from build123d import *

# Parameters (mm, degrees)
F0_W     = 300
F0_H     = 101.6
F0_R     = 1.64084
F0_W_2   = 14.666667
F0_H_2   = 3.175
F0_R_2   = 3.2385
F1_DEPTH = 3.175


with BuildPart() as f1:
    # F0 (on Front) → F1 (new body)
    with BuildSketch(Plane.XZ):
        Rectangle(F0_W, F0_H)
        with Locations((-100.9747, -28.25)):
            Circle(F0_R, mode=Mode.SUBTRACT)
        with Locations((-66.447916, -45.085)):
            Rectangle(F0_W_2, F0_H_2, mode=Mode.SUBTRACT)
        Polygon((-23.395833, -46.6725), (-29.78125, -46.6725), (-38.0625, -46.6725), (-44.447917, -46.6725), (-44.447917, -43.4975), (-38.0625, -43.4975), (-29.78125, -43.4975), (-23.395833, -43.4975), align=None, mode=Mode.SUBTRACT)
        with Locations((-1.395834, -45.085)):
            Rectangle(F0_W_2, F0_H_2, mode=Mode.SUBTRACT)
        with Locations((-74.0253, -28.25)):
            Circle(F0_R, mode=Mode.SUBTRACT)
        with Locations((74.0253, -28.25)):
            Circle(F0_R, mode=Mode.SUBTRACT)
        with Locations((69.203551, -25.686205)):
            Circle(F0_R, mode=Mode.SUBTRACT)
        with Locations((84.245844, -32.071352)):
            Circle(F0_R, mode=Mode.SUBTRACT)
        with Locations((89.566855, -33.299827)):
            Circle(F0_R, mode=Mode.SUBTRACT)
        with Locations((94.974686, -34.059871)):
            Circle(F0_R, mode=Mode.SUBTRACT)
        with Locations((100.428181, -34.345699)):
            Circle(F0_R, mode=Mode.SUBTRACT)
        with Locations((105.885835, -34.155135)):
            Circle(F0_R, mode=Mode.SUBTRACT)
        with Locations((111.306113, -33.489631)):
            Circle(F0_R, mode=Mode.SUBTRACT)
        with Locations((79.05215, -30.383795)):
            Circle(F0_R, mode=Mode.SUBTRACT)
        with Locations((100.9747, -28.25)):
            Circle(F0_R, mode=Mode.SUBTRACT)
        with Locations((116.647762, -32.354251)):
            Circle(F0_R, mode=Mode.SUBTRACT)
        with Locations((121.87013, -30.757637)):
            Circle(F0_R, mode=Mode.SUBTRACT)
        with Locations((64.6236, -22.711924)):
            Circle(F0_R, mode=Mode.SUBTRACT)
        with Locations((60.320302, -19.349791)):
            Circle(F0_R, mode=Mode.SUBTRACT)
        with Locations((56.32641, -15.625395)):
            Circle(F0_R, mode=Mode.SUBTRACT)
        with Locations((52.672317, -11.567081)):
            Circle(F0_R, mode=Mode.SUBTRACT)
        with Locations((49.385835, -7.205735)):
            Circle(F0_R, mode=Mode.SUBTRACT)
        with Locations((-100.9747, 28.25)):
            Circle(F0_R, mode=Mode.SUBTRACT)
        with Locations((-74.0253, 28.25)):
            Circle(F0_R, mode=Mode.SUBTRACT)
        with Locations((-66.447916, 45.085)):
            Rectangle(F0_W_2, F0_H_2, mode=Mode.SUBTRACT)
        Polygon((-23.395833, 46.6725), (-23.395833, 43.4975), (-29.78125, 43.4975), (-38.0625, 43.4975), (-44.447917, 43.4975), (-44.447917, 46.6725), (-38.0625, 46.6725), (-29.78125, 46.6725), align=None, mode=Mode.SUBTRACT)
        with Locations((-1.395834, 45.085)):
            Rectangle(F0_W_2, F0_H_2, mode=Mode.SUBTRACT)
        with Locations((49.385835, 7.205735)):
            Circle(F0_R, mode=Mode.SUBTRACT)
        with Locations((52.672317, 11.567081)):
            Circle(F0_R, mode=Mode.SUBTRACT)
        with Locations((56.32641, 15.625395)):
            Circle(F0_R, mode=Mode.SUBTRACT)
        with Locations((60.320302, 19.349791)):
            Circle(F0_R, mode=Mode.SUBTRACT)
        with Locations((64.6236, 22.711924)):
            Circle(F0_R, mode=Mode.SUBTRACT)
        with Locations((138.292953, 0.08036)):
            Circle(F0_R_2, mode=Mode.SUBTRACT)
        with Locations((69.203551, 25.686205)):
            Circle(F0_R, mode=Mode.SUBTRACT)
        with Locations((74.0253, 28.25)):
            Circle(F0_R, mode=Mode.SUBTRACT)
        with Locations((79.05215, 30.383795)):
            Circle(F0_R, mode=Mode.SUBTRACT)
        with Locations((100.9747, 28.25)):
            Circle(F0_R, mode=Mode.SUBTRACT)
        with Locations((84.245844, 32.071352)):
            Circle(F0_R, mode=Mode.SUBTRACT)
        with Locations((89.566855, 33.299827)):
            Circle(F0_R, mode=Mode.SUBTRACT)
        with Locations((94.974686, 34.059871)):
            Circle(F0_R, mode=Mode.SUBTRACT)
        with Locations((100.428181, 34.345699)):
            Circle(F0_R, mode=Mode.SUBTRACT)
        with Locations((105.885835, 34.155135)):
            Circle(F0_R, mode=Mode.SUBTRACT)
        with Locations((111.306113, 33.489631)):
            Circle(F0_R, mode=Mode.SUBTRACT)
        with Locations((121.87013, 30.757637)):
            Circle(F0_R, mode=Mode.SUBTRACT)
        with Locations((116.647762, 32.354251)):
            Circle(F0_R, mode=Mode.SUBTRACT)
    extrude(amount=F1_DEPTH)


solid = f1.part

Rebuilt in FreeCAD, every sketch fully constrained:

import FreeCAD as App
import Part
import Sketcher

V = App.Vector
Q = App.Units.Quantity

doc = App.newDocument("Part")
params = doc.addObject("Spreadsheet::Sheet", "Params")
for row, (alias, value) in enumerate([
    ("sketch1_height", "4 in"),
    ("sketch1_diameter", "0.255 in"),
    ("sketch1_height2", "0.125 in"),
    ("pad1_length", "0.125 in"),
], start=1):
    params.set(f"A{row}", alias)
    params.set(f"B{row}", "=" + value)
    params.setAlias(f"B{row}", alias)

body = doc.addObject("PartDesign::Body", "Body")

# Sketch on XZ plane
sketch1 = doc.addObject("Sketcher::SketchObject", "Sketch")
body.addObject(sketch1)
sketch1.AttachmentSupport = (doc.XZ_Plane, [""])
sketch1.MapMode = "FlatFace"
sketch1.addGeometry(Part.LineSegment(V(-150, 50.8, 0), V(-150, -50.8, 0)), False)
sketch1.addGeometry(Part.LineSegment(V(-150, -50.8, 0), V(150, -50.8, 0)), False)
sketch1.addGeometry(Part.LineSegment(V(150, -50.8, 0), V(150, 50.8, 0)), False)
sketch1.addGeometry(Part.LineSegment(V(150, 50.8, 0), V(-150, 50.8, 0)), False)
sketch1.addGeometry(Part.LineSegment(V(-59.1, -46.7, 0), V(-73.8, -46.7, 0)), False)
sketch1.addGeometry(Part.LineSegment(V(-73.8, -46.7, 0), V(-73.8, -43.5, 0)), False)
sketch1.addGeometry(Part.LineSegment(V(-73.8, -43.5, 0), V(-59.1, -43.5, 0)), False)
sketch1.addGeometry(Part.LineSegment(V(-59.1, -43.5, 0), V(-59.1, -46.7, 0)), False)
sketch1.addGeometry(Part.Circle(V(-101, -28.2, 0), V(0, 0, 1), 1.6), False)
sketch1.addGeometry(Part.Circle(V(-74, -28.2, 0), V(0, 0, 1), 1.6), False)
sketch1.addGeometry(Part.LineSegment(V(-23.4, -43.5, 0), V(-23.4, -46.7, 0)), False)
sketch1.addGeometry(Part.LineSegment(V(-23.4, -46.7, 0), V(-44.4, -46.7, 0)), False)
sketch1.addGeometry(Part.LineSegment(V(-44.4, -46.7, 0), V(-44.4, -43.5, 0)), False)
sketch1.addGeometry(Part.LineSegment(V(-44.4, -43.5, 0), V(-23.4, -43.5, 0)), False)
sketch1.addGeometry(Part.LineSegment(V(5.9, -46.7, 0), V(-8.7, -46.7, 0)), False)
sketch1.addGeometry(Part.LineSegment(V(-8.7, -46.7, 0), V(-8.7, -43.5, 0)), False)
sketch1.addGeometry(Part.LineSegment(V(-8.7, -43.5, 0), V(5.9, -43.5, 0)), False)
sketch1.addGeometry(Part.LineSegment(V(5.9, -43.5, 0), V(5.9, -46.7, 0)), False)
sketch1.addGeometry(Part.Circle(V(79.1, -30.4, 0), V(0, 0, 1), 1.6), False)
sketch1.addGeometry(Part.Circle(V(74, -28.2, 0), V(0, 0, 1), 1.6), False)
sketch1.addGeometry(Part.Circle(V(69.2, -25.7, 0), V(0, 0, 1), 1.6), False)
sketch1.addGeometry(Part.Circle(V(95, -34.1, 0), V(0, 0, 1), 1.6), False)
sketch1.addGeometry(Part.Circle(V(89.6, -33.3, 0), V(0, 0, 1), 1.6), False)
sketch1.addGeometry(Part.Circle(V(84.2, -32.1, 0), V(0, 0, 1), 1.6), False)
sketch1.addGeometry(Part.Circle(V(100.4, -34.3, 0), V(0, 0, 1), 1.6), False)
sketch1.addGeometry(Part.Circle(V(105.9, -34.2, 0), V(0, 0, 1), 1.6), False)
sketch1.addGeometry(Part.Circle(V(101, -28.2, 0), V(0, 0, 1), 1.6), False)
sketch1.addGeometry(Part.Circle(V(111.3, -33.5, 0), V(0, 0, 1), 1.6), False)
sketch1.addGeometry(Part.Circle(V(116.6, -32.4, 0), V(0, 0, 1), 1.6), False)
sketch1.addGeometry(Part.Circle(V(121.9, -30.8, 0), V(0, 0, 1), 1.6), False)
sketch1.addGeometry(Part.Circle(V(64.6, -22.7, 0), V(0, 0, 1), 1.6), False)
sketch1.addGeometry(Part.Circle(V(60.3, -19.3, 0), V(0, 0, 1), 1.6), False)
sketch1.addGeometry(Part.Circle(V(56.3, -15.6, 0), V(0, 0, 1), 1.6), False)
sketch1.addGeometry(Part.Circle(V(49.4, -7.2, 0), V(0, 0, 1), 1.6), False)
sketch1.addGeometry(Part.Circle(V(52.7, -11.6, 0), V(0, 0, 1), 1.6), False)
sketch1.addGeometry(Part.Circle(V(-101, 28.2, 0), V(0, 0, 1), 1.6), False)
sketch1.addGeometry(Part.Circle(V(-74, 28.2, 0), V(0, 0, 1), 1.6), False)
sketch1.addGeometry(Part.LineSegment(V(-59.1, 43.5, 0), V(-73.8, 43.5, 0)), False)
sketch1.addGeometry(Part.LineSegment(V(-73.8, 43.5, 0), V(-73.8, 46.7, 0)), False)
sketch1.addGeometry(Part.LineSegment(V(-73.8, 46.7, 0), V(-59.1, 46.7, 0)), False)
sketch1.addGeometry(Part.LineSegment(V(-59.1, 46.7, 0), V(-59.1, 43.5, 0)), False)
sketch1.addGeometry(Part.LineSegment(V(-44.4, 46.7, 0), V(-23.4, 46.7, 0)), False)
sketch1.addGeometry(Part.LineSegment(V(-23.4, 46.7, 0), V(-23.4, 43.5, 0)), False)
sketch1.addGeometry(Part.LineSegment(V(-23.4, 43.5, 0), V(-44.4, 43.5, 0)), False)
sketch1.addGeometry(Part.LineSegment(V(-44.4, 43.5, 0), V(-44.4, 46.7, 0)), False)
sketch1.addGeometry(Part.LineSegment(V(5.9, 43.5, 0), V(-8.7, 43.5, 0)), False)
sketch1.addGeometry(Part.LineSegment(V(-8.7, 43.5, 0), V(-8.7, 46.7, 0)), False)
sketch1.addGeometry(Part.LineSegment(V(-8.7, 46.7, 0), V(5.9, 46.7, 0)), False)
sketch1.addGeometry(Part.LineSegment(V(5.9, 46.7, 0), V(5.9, 43.5, 0)), False)
sketch1.addGeometry(Part.Circle(V(49.4, 7.2, 0), V(0, 0, 1), 1.6), False)
sketch1.addGeometry(Part.Circle(V(52.7, 11.6, 0), V(0, 0, 1), 1.6), False)
sketch1.addGeometry(Part.Circle(V(56.3, 15.6, 0), V(0, 0, 1), 1.6), False)
sketch1.addGeometry(Part.Circle(V(60.3, 19.3, 0), V(0, 0, 1), 1.6), False)
sketch1.addGeometry(Part.Circle(V(64.6, 22.7, 0), V(0, 0, 1), 1.6), False)
sketch1.addGeometry(Part.Circle(V(138.3, 0.1, 0), V(0, 0, 1), 3.2), False)
sketch1.addGeometry(Part.Circle(V(69.2, 25.7, 0), V(0, 0, 1), 1.6), False)
sketch1.addGeometry(Part.Circle(V(74, 28.2, 0), V(0, 0, 1), 1.6), False)
sketch1.addGeometry(Part.Circle(V(79.1, 30.4, 0), V(0, 0, 1), 1.6), False)
sketch1.addGeometry(Part.Circle(V(101, 28.2, 0), V(0, 0, 1), 1.6), False)
sketch1.addGeometry(Part.Circle(V(84.2, 32.1, 0), V(0, 0, 1), 1.6), False)
sketch1.addGeometry(Part.Circle(V(89.6, 33.3, 0), V(0, 0, 1), 1.6), False)
sketch1.addGeometry(Part.Circle(V(95, 34.1, 0), V(0, 0, 1), 1.6), False)
sketch1.addGeometry(Part.Circle(V(100.4, 34.3, 0), V(0, 0, 1), 1.6), False)
sketch1.addGeometry(Part.Circle(V(105.9, 34.2, 0), V(0, 0, 1), 1.6), False)
sketch1.addGeometry(Part.Circle(V(121.9, 30.8, 0), V(0, 0, 1), 1.6), False)
sketch1.addGeometry(Part.Circle(V(111.3, 33.5, 0), V(0, 0, 1), 1.6), False)
sketch1.addGeometry(Part.Circle(V(116.6, 32.4, 0), V(0, 0, 1), 1.6), False)
sketch1.addConstraint(Sketcher.Constraint("Coincident", 0, 2, 1, 1))
sketch1.addConstraint(Sketcher.Constraint("Coincident", 1, 2, 2, 1))
sketch1.addConstraint(Sketcher.Constraint("Coincident", 2, 2, 3, 1))
sketch1.addConstraint(Sketcher.Constraint("Coincident", 3, 2, 0, 1))
sketch1.addConstraint(Sketcher.Constraint("Coincident", 4, 2, 5, 1))
sketch1.addConstraint(Sketcher.Constraint("Coincident", 5, 2, 6, 1))
sketch1.addConstraint(Sketcher.Constraint("Coincident", 6, 2, 7, 1))
sketch1.addConstraint(Sketcher.Constraint("Coincident", 7, 2, 4, 1))
sketch1.addConstraint(Sketcher.Constraint("Coincident", 10, 2, 11, 1))
sketch1.addConstraint(Sketcher.Constraint("Coincident", 11, 2, 12, 1))
sketch1.addConstraint(Sketcher.Constraint("Coincident", 12, 2, 13, 1))
sketch1.addConstraint(Sketcher.Constraint("Coincident", 13, 2, 10, 1))
sketch1.addConstraint(Sketcher.Constraint("Coincident", 14, 2, 15, 1))
sketch1.addConstraint(Sketcher.Constraint("Coincident", 15, 2, 16, 1))
sketch1.addConstraint(Sketcher.Constraint("Coincident", 16, 2, 17, 1))
sketch1.addConstraint(Sketcher.Constraint("Coincident", 17, 2, 14, 1))
sketch1.addConstraint(Sketcher.Constraint("Coincident", 37, 2, 38, 1))
sketch1.addConstraint(Sketcher.Constraint("Coincident", 38, 2, 39, 1))
sketch1.addConstraint(Sketcher.Constraint("Coincident", 39, 2, 40, 1))
sketch1.addConstraint(Sketcher.Constraint("Coincident", 40, 2, 37, 1))
sketch1.addConstraint(Sketcher.Constraint("Coincident", 41, 2, 42, 1))
sketch1.addConstraint(Sketcher.Constraint("Coincident", 42, 2, 43, 1))
sketch1.addConstraint(Sketcher.Constraint("Coincident", 43, 2, 44, 1))
sketch1.addConstraint(Sketcher.Constraint("Coincident", 44, 2, 41, 1))
sketch1.addConstraint(Sketcher.Constraint("Coincident", 45, 2, 46, 1))
sketch1.addConstraint(Sketcher.Constraint("Coincident", 46, 2, 47, 1))
sketch1.addConstraint(Sketcher.Constraint("Coincident", 47, 2, 48, 1))
sketch1.addConstraint(Sketcher.Constraint("Coincident", 48, 2, 45, 1))
sketch1.addConstraint(Sketcher.Constraint("Vertical", 0))
sketch1.addConstraint(Sketcher.Constraint("Horizontal", 1))
sketch1.addConstraint(Sketcher.Constraint("Vertical", 2))
sketch1.addConstraint(Sketcher.Constraint("Horizontal", 3))
sketch1.addConstraint(Sketcher.Constraint("Horizontal", 4))
sketch1.addConstraint(Sketcher.Constraint("Vertical", 5))
sketch1.addConstraint(Sketcher.Constraint("Horizontal", 6))
sketch1.addConstraint(Sketcher.Constraint("Vertical", 7))
sketch1.addConstraint(Sketcher.Constraint("Vertical", 10))
sketch1.addConstraint(Sketcher.Constraint("Horizontal", 11))
sketch1.addConstraint(Sketcher.Constraint("Vertical", 12))
sketch1.addConstraint(Sketcher.Constraint("Horizontal", 13))
sketch1.addConstraint(Sketcher.Constraint("Horizontal", 14))
sketch1.addConstraint(Sketcher.Constraint("Vertical", 15))
sketch1.addConstraint(Sketcher.Constraint("Horizontal", 16))
sketch1.addConstraint(Sketcher.Constraint("Vertical", 17))
sketch1.addConstraint(Sketcher.Constraint("Horizontal", 37))
sketch1.addConstraint(Sketcher.Constraint("Vertical", 38))
sketch1.addConstraint(Sketcher.Constraint("Horizontal", 39))
sketch1.addConstraint(Sketcher.Constraint("Vertical", 40))
sketch1.addConstraint(Sketcher.Constraint("Horizontal", 41))
sketch1.addConstraint(Sketcher.Constraint("Vertical", 42))
sketch1.addConstraint(Sketcher.Constraint("Horizontal", 43))
sketch1.addConstraint(Sketcher.Constraint("Vertical", 44))
sketch1.addConstraint(Sketcher.Constraint("Horizontal", 45))
sketch1.addConstraint(Sketcher.Constraint("Vertical", 46))
sketch1.addConstraint(Sketcher.Constraint("Horizontal", 47))
sketch1.addConstraint(Sketcher.Constraint("Vertical", 48))
sketch1.addConstraint(Sketcher.Constraint("Equal", 8, 9))
sketch1.addConstraint(Sketcher.Constraint("Equal", 9, 18))
sketch1.addConstraint(Sketcher.Constraint("Equal", 18, 19))
sketch1.addConstraint(Sketcher.Constraint("Equal", 19, 20))
sketch1.addConstraint(Sketcher.Constraint("Equal", 20, 21))
sketch1.addConstraint(Sketcher.Constraint("Equal", 21, 22))
sketch1.addConstraint(Sketcher.Constraint("Equal", 22, 23))
sketch1.addConstraint(Sketcher.Constraint("Equal", 23, 24))
sketch1.addConstraint(Sketcher.Constraint("Equal", 24, 25))
sketch1.addConstraint(Sketcher.Constraint("Equal", 25, 26))
sketch1.addConstraint(Sketcher.Constraint("Equal", 26, 27))
sketch1.addConstraint(Sketcher.Constraint("Equal", 27, 28))
sketch1.addConstraint(Sketcher.Constraint("Equal", 28, 29))
sketch1.addConstraint(Sketcher.Constraint("Equal", 29, 30))
sketch1.addConstraint(Sketcher.Constraint("Equal", 30, 31))
sketch1.addConstraint(Sketcher.Constraint("Equal", 31, 32))
sketch1.addConstraint(Sketcher.Constraint("Equal", 32, 33))
sketch1.addConstraint(Sketcher.Constraint("Equal", 33, 34))
sketch1.addConstraint(Sketcher.Constraint("Equal", 34, 35))
sketch1.addConstraint(Sketcher.Constraint("Equal", 35, 36))
sketch1.addConstraint(Sketcher.Constraint("Equal", 36, 49))
sketch1.addConstraint(Sketcher.Constraint("Equal", 49, 50))
sketch1.addConstraint(Sketcher.Constraint("Equal", 50, 51))
sketch1.addConstraint(Sketcher.Constraint("Equal", 51, 52))
sketch1.addConstraint(Sketcher.Constraint("Equal", 52, 53))
sketch1.addConstraint(Sketcher.Constraint("Equal", 53, 55))
sketch1.addConstraint(Sketcher.Constraint("Equal", 55, 56))
sketch1.addConstraint(Sketcher.Constraint("Equal", 56, 57))
sketch1.addConstraint(Sketcher.Constraint("Equal", 57, 58))
sketch1.addConstraint(Sketcher.Constraint("Equal", 58, 59))
sketch1.addConstraint(Sketcher.Constraint("Equal", 59, 60))
sketch1.addConstraint(Sketcher.Constraint("Equal", 60, 61))
sketch1.addConstraint(Sketcher.Constraint("Equal", 61, 62))
sketch1.addConstraint(Sketcher.Constraint("Equal", 62, 63))
sketch1.addConstraint(Sketcher.Constraint("Equal", 63, 64))
sketch1.addConstraint(Sketcher.Constraint("Equal", 64, 65))
sketch1.addConstraint(Sketcher.Constraint("Equal", 65, 66))
sketch1.addConstraint(Sketcher.Constraint("Symmetric", 26, 3, 35, 3, -1, 1))
sketch1.addConstraint(Sketcher.Constraint("Symmetric", 19, 3, 36, 3, -1, 1))
sketch1.addConstraint(Sketcher.Constraint("Symmetric", 9, 3, 56, 3, -1, 1))
sketch1.addConstraint(Sketcher.Constraint("Symmetric", 8, 3, 58, 3, -1, 1))
sketch1.addConstraint(Sketcher.Constraint("Symmetric", 0, 2, 2, 2, -1, 1))
sketch1.addConstraint(Sketcher.Constraint("Symmetric", 9, 3, 19, 3, -2))
sketch1.addConstraint(Sketcher.Constraint("Symmetric", 8, 3, 26, 3, -2))
sketch1.addConstraint(Sketcher.Constraint("Symmetric", 33, 3, 49, 3, -1))
sketch1.addConstraint(Sketcher.Constraint("Symmetric", 34, 3, 50, 3, -1))
sketch1.addConstraint(Sketcher.Constraint("Symmetric", 32, 3, 51, 3, -1))
sketch1.addConstraint(Sketcher.Constraint("Symmetric", 31, 3, 52, 3, -1))
sketch1.addConstraint(Sketcher.Constraint("Symmetric", 30, 3, 53, 3, -1))
sketch1.addConstraint(Sketcher.Constraint("Symmetric", 20, 3, 55, 3, -1))
sketch1.addConstraint(Sketcher.Constraint("Symmetric", 18, 3, 57, 3, -1))
sketch1.addConstraint(Sketcher.Constraint("Symmetric", 23, 3, 59, 3, -1))
sketch1.addConstraint(Sketcher.Constraint("Symmetric", 22, 3, 60, 3, -1))
sketch1.addConstraint(Sketcher.Constraint("Symmetric", 21, 3, 61, 3, -1))
sketch1.addConstraint(Sketcher.Constraint("Symmetric", 24, 3, 62, 3, -1))
sketch1.addConstraint(Sketcher.Constraint("Symmetric", 25, 3, 63, 3, -1))
sketch1.addConstraint(Sketcher.Constraint("Symmetric", 29, 3, 64, 3, -1))
sketch1.addConstraint(Sketcher.Constraint("Symmetric", 27, 3, 65, 3, -1))
sketch1.addConstraint(Sketcher.Constraint("Symmetric", 28, 3, 66, 3, -1))
sketch1.addConstraint(Sketcher.Constraint("Symmetric", 5, 2, 37, 2, -1))
sketch1.addConstraint(Sketcher.Constraint("Symmetric", 7, 2, 39, 2, -1))
sketch1.addConstraint(Sketcher.Constraint("Symmetric", 10, 2, 41, 2, -1))
sketch1.addConstraint(Sketcher.Constraint("Symmetric", 12, 2, 43, 2, -1))
sketch1.addConstraint(Sketcher.Constraint("Symmetric", 15, 2, 45, 2, -1))
sketch1.addConstraint(Sketcher.Constraint("Symmetric", 17, 2, 47, 2, -1))
sketch1.addConstraint(Sketcher.Constraint("Horizontal", 8, 3, 9, 3))
sketch1.addConstraint(Sketcher.Constraint("Horizontal", 7, 2, 10, 2))
sketch1.addConstraint(Sketcher.Constraint("Horizontal", 6, 2, 12, 2))
sketch1.addConstraint(Sketcher.Constraint("Horizontal", 11, 2, 14, 2))
sketch1.addConstraint(Sketcher.Constraint("Horizontal", 13, 2, 15, 2))
sketch1.addConstraint(Sketcher.Constraint("Equal", 6, 14))
sketch1.addConstraint(Sketcher.Constraint("DistanceY", 0, 2, 0, 1, Q("4 in")))
sketch1.addConstraint(Sketcher.Constraint("Diameter", 54, Q("0.255 in")))
sketch1.addConstraint(Sketcher.Constraint("Diameter", 8, Q("0.1292 in")))
sketch1.addConstraint(Sketcher.Constraint("DistanceY", 5, 1, 5, 2, Q("0.125 in")))
sketch1.addConstraint(Sketcher.Constraint("DistanceX", 1, 1, 1, 2, 300.0))
sketch1.addConstraint(Sketcher.Constraint("DistanceY", 4, 2, -1, 1, Q("1.8375 in")))
sketch1.addConstraint(Sketcher.Constraint("DistanceX", 8, 3, -1, 1, 100.9747))
sketch1.addConstraint(Sketcher.Constraint("DistanceY", 8, 3, -1, 1, 28.25))
sketch1.addConstraint(Sketcher.Constraint("DistanceX", 9, 3, -1, 1, 74.0253))
sketch1.addConstraint(Sketcher.Constraint("DistanceY", 24, 3, -1, 1, 34.345699))
sketch1.addConstraint(Sketcher.Constraint("DistanceX", -1, 1, 30, 3, 64.6236))
sketch1.addConstraint(Sketcher.Constraint("DistanceX", -1, 1, 31, 3, 60.320302))
sketch1.addConstraint(Sketcher.Constraint("DistanceX", -1, 1, 16, 2, 5.9375))
sketch1.addConstraint(Sketcher.Constraint("DistanceX", 4, 2, 4, 1, 14.666667))
sketch1.addConstraint(Sketcher.Constraint("DistanceX", 11, 2, 11, 1, 21.052084))
sketch1.addConstraint(Sketcher.Constraint("DistanceX", -1, 1, 18, 3, 79.05215))
sketch1.addConstraint(Sketcher.Constraint("DistanceX", -1, 1, 20, 3, 69.203551))
sketch1.addConstraint(Sketcher.Constraint("DistanceY", 21, 3, -1, 1, 34.059871))
sketch1.addConstraint(Sketcher.Constraint("DistanceY", 23, 3, -1, 1, 32.071352))
sketch1.addConstraint(Sketcher.Constraint("DistanceX", -1, 1, 24, 3, 100.428181))
sketch1.addConstraint(Sketcher.Constraint("DistanceY", 27, 3, -1, 1, 33.489631))
sketch1.addConstraint(Sketcher.Constraint("DistanceX", -1, 1, 28, 3, 116.647762))
sketch1.addConstraint(Sketcher.Constraint("DistanceY", 28, 3, -1, 1, 32.354251))
sketch1.addConstraint(Sketcher.Constraint("DistanceX", -1, 1, 29, 3, 121.87013))
sketch1.addConstraint(Sketcher.Constraint("DistanceY", 31, 3, -1, 1, 19.349791))
sketch1.addConstraint(Sketcher.Constraint("DistanceX", -1, 1, 32, 3, 56.32641))
sketch1.addConstraint(Sketcher.Constraint("DistanceY", 34, 3, -1, 1, 11.567081))
sketch1.addConstraint(Sketcher.Constraint("DistanceY", -1, 1, 54, 3, 0.08036))
sketch1.addConstraint(Sketcher.Constraint("DistanceX", 4, 2, -1, 1, 73.78125))
sketch1.addConstraint(Sketcher.Constraint("DistanceY", 18, 3, -1, 1, 30.383795))
sketch1.addConstraint(Sketcher.Constraint("DistanceY", 20, 3, -1, 1, 25.686205))
sketch1.addConstraint(Sketcher.Constraint("DistanceX", -1, 1, 21, 3, 94.974686))
sketch1.addConstraint(Sketcher.Constraint("DistanceX", -1, 1, 22, 3, 89.566855))
sketch1.addConstraint(Sketcher.Constraint("DistanceY", 22, 3, -1, 1, 33.299827))
sketch1.addConstraint(Sketcher.Constraint("DistanceX", -1, 1, 23, 3, 84.245844))
sketch1.addConstraint(Sketcher.Constraint("DistanceX", -1, 1, 25, 3, 105.885835))
sketch1.addConstraint(Sketcher.Constraint("DistanceY", 25, 3, -1, 1, 34.155135))
sketch1.addConstraint(Sketcher.Constraint("DistanceX", -1, 1, 27, 3, 111.306113))
sketch1.addConstraint(Sketcher.Constraint("DistanceY", 29, 3, -1, 1, 30.757637))
sketch1.addConstraint(Sketcher.Constraint("DistanceY", 30, 3, -1, 1, 22.711924))
sketch1.addConstraint(Sketcher.Constraint("DistanceY", 32, 3, -1, 1, 15.625395))
sketch1.addConstraint(Sketcher.Constraint("DistanceX", -1, 1, 33, 3, 49.385835))
sketch1.addConstraint(Sketcher.Constraint("DistanceY", 33, 3, -1, 1, 7.205735))
sketch1.addConstraint(Sketcher.Constraint("DistanceX", -1, 1, 34, 3, 52.672317))
sketch1.addConstraint(Sketcher.Constraint("DistanceX", -1, 1, 54, 3, 138.292953))
sketch1.addConstraint(Sketcher.Constraint("DistanceX", 10, 2, -1, 1, 23.395833))
sketch1.setExpression("Constraints[127]", "Params.sketch1_height")
sketch1.setExpression("Constraints[128]", "Params.sketch1_diameter")
sketch1.setExpression("Constraints[130]", "Params.sketch1_height2")
pad1 = doc.addObject("PartDesign::Pad", "Pad")
body.addObject(pad1)
pad1.Profile = sketch1
pad1.setExpression("Length", "Params.pad1_length")

doc.recompute()
